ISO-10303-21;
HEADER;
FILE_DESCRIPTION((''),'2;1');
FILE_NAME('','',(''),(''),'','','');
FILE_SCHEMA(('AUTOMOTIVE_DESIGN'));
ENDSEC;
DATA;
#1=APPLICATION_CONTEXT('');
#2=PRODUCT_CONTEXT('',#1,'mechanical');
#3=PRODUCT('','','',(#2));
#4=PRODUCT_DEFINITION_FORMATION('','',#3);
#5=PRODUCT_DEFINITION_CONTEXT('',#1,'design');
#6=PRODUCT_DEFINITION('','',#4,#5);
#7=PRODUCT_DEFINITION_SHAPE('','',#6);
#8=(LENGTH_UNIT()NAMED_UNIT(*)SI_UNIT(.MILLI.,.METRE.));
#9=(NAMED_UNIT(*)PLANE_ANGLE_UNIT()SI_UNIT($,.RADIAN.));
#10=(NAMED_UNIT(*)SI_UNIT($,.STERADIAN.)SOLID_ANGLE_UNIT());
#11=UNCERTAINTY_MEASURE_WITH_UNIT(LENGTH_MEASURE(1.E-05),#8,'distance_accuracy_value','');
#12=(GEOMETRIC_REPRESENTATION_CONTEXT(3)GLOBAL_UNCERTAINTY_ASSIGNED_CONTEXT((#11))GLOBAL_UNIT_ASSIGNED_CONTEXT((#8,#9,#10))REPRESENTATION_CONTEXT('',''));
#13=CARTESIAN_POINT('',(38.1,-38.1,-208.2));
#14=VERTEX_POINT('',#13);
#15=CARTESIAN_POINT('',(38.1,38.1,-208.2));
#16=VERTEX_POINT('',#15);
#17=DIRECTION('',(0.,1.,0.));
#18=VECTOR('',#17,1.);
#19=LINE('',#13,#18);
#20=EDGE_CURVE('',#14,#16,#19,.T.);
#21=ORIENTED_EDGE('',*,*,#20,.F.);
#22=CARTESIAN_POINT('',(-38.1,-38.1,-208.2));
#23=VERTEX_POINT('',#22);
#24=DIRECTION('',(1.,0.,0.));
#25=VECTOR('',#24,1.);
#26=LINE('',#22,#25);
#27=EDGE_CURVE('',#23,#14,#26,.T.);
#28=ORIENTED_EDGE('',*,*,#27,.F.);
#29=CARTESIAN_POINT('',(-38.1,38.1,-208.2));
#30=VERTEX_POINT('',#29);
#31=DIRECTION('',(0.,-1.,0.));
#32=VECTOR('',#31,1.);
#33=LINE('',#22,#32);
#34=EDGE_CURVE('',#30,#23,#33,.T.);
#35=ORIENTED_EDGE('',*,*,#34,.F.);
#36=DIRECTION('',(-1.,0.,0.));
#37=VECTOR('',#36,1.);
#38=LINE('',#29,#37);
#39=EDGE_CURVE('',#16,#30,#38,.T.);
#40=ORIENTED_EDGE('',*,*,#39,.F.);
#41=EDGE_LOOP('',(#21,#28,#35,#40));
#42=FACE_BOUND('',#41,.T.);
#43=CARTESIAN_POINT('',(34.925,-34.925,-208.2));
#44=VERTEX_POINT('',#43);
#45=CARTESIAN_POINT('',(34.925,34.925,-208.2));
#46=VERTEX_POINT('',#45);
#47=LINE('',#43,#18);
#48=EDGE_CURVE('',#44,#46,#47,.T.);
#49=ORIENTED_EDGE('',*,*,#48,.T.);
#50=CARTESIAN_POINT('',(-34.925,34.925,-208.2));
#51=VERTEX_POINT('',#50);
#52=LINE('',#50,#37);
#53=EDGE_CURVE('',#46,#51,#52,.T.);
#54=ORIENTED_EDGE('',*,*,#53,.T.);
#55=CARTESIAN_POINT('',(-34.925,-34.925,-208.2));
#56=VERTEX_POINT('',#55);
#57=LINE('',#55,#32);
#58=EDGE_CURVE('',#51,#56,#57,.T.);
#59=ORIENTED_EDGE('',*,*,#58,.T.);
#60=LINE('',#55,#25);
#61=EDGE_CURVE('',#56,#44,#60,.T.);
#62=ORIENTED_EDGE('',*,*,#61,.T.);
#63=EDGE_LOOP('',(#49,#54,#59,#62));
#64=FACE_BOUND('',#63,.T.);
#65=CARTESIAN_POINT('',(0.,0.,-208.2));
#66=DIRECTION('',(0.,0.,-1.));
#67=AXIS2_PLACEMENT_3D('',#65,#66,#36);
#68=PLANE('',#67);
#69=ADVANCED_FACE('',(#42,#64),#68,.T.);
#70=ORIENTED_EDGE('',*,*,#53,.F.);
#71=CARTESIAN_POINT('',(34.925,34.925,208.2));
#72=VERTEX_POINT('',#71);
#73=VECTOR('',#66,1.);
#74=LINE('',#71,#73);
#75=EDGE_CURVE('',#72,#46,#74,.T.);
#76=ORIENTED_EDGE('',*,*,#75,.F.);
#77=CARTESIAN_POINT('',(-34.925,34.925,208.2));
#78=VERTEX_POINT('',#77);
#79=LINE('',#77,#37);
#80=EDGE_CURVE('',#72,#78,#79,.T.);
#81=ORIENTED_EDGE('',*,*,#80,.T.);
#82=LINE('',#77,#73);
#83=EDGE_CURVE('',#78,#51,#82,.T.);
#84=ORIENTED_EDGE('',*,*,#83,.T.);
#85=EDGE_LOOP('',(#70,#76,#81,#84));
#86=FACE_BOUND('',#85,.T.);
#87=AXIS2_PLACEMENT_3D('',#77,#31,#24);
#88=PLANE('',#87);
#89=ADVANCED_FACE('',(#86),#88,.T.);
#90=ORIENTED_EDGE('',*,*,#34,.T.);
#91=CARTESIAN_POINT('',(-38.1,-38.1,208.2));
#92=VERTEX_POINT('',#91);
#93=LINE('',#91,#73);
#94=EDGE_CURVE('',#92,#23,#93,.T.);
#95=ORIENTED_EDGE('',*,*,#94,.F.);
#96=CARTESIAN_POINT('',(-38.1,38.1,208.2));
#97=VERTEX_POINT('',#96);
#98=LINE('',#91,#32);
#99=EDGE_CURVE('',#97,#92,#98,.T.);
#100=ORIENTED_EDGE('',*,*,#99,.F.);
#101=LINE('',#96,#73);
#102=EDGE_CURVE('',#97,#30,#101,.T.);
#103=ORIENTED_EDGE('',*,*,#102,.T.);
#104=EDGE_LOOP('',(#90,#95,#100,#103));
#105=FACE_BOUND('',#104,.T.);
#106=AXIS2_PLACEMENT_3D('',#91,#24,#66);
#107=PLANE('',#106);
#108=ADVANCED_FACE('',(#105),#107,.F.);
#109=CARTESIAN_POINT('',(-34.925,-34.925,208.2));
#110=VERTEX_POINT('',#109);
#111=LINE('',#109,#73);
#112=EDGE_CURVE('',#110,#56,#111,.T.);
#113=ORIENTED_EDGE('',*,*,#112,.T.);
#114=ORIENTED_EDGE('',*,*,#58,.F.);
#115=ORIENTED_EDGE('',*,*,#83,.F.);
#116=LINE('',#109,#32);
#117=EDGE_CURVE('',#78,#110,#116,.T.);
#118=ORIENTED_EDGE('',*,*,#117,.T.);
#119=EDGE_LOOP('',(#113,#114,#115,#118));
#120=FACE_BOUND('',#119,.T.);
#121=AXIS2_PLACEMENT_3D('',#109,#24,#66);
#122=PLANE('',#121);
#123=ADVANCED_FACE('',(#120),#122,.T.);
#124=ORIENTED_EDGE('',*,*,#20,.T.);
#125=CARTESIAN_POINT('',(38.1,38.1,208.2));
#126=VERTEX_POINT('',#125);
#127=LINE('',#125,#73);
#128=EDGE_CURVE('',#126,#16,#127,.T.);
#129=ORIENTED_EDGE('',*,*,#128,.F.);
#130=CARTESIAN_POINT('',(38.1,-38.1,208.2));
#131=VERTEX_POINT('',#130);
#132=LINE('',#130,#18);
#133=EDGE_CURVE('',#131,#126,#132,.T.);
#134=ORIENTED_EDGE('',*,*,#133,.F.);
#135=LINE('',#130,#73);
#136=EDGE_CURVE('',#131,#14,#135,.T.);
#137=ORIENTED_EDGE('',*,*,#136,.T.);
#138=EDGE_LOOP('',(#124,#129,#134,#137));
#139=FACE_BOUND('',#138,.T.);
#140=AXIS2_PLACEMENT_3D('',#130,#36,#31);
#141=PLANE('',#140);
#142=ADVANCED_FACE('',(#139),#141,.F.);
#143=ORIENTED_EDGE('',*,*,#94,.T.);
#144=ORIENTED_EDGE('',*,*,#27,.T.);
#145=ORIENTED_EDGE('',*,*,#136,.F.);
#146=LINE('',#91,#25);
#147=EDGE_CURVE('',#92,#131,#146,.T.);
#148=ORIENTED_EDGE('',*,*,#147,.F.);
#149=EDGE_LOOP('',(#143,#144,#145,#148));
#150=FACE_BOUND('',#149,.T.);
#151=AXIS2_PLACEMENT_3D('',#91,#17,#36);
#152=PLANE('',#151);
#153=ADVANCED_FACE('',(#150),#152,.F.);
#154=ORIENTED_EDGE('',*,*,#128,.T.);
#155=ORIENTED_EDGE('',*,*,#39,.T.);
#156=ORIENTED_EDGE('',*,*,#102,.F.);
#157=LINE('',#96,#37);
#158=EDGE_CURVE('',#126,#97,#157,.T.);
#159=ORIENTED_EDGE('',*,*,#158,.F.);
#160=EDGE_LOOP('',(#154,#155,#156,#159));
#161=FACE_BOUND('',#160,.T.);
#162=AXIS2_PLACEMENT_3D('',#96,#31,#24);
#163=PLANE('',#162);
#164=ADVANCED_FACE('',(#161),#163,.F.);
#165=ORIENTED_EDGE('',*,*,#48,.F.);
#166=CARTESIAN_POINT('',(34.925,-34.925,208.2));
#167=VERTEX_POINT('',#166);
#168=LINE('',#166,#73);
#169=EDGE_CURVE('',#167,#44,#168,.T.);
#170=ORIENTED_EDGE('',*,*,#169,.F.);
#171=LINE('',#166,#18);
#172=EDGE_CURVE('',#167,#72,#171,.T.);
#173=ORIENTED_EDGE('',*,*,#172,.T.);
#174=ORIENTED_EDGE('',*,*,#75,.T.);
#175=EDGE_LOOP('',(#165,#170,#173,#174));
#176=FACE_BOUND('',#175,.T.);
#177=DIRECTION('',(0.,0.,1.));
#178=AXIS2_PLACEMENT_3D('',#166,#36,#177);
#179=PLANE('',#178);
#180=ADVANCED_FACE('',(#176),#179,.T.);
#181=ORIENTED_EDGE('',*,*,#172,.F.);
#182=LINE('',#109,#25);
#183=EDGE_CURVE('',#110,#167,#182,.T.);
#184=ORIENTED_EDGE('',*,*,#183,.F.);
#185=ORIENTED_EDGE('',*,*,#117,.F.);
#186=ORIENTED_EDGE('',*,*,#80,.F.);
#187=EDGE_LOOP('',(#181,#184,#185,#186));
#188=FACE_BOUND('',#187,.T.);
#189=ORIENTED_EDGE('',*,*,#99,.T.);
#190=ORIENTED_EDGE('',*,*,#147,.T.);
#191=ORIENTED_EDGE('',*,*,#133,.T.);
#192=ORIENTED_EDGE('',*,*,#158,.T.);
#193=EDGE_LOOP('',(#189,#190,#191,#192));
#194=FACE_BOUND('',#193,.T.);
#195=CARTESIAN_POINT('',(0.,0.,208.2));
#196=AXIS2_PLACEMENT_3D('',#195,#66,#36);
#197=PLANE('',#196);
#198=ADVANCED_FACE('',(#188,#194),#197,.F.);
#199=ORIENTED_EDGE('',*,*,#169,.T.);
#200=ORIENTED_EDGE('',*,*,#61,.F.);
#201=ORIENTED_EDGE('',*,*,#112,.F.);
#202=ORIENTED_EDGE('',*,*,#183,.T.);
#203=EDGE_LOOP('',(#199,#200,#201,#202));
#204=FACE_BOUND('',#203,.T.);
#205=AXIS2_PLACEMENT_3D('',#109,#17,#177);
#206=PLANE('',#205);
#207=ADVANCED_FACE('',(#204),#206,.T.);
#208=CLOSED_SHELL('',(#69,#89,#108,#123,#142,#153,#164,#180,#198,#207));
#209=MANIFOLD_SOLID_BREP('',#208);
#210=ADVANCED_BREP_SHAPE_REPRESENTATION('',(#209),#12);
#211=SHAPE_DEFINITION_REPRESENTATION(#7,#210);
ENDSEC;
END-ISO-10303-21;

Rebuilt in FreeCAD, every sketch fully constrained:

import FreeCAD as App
import Part
import Sketcher

V = App.Vector
Q = App.Units.Quantity

doc = App.newDocument("Part")
body = doc.addObject("PartDesign::Body", "Body")

# Sketch on XY plane
sketch1 = body.newObject("Sketcher::SketchObject", "Sketch")
sketch1.AttachmentSupport = (doc.getObject("XY_Plane"), [""])
sketch1.MapMode = "FlatFace"
sketch1.addGeometry([
    Part.LineSegment(V(-38.1, 38.1, 0), V(-38.1, -38.1, 0)),  # 0
    Part.LineSegment(V(-38.1, -38.1, 0), V(38.1, -38.1, 0)),  # 1
    Part.LineSegment(V(38.1, -38.1, 0), V(38.1, 38.1, 0)),  # 2
    Part.LineSegment(V(38.1, 38.1, 0), V(-38.1, 38.1, 0)),  # 3
    Part.LineSegment(V(34.925, -34.925, 0), V(-34.925, -34.925, 0)),  # 4
    Part.LineSegment(V(-34.925, -34.925, 0), V(-34.925, 34.925, 0)),  # 5
    Part.LineSegment(V(-34.925, 34.925, 0), V(34.925, 34.925, 0)),  # 6
    Part.LineSegment(V(34.925, 34.925, 0), V(34.925, -34.925, 0)),  # 7
], False)
sketch1.addConstraint([
    Sketcher.Constraint("Coincident", 0, 2, 1, 1),
    Sketcher.Constraint("Coincident", 1, 2, 2, 1),
    Sketcher.Constraint("Coincident", 2, 2, 3, 1),
    Sketcher.Constraint("Coincident", 3, 2, 0, 1),
    Sketcher.Constraint("Coincident", 4, 2, 5, 1),
    Sketcher.Constraint("Coincident", 5, 2, 6, 1),
    Sketcher.Constraint("Coincident", 6, 2, 7, 1),
    Sketcher.Constraint("Coincident", 7, 2, 4, 1),
    Sketcher.Constraint("Vertical", 0),
    Sketcher.Constraint("Horizontal", 1),
    Sketcher.Constraint("Vertical", 2),
    Sketcher.Constraint("Horizontal", 3),
    Sketcher.Constraint("Horizontal", 4),
    Sketcher.Constraint("Vertical", 5),
    Sketcher.Constraint("Horizontal", 6),
    Sketcher.Constraint("Vertical", 7),
    Sketcher.Constraint("Symmetric", 0, 2, 2, 2, -1, 1),
    Sketcher.Constraint("Symmetric", 4, 2, 6, 2, -1, 1),
    Sketcher.Constraint("Equal", 3, 0),
    Sketcher.Constraint("Equal", 6, 5),
    Sketcher.Constraint("DistanceX", 1, 1, 1, 2, Q("3 in")),
    Sketcher.Constraint("DistanceX", 4, 2, 4, 1, Q("2.75 in")),
])
pad1 = body.newObject("PartDesign::Pad", "Pad")
pad1.Profile = sketch1
pad1.Length = 416.4
pad1.Midplane = True

doc.recompute()
